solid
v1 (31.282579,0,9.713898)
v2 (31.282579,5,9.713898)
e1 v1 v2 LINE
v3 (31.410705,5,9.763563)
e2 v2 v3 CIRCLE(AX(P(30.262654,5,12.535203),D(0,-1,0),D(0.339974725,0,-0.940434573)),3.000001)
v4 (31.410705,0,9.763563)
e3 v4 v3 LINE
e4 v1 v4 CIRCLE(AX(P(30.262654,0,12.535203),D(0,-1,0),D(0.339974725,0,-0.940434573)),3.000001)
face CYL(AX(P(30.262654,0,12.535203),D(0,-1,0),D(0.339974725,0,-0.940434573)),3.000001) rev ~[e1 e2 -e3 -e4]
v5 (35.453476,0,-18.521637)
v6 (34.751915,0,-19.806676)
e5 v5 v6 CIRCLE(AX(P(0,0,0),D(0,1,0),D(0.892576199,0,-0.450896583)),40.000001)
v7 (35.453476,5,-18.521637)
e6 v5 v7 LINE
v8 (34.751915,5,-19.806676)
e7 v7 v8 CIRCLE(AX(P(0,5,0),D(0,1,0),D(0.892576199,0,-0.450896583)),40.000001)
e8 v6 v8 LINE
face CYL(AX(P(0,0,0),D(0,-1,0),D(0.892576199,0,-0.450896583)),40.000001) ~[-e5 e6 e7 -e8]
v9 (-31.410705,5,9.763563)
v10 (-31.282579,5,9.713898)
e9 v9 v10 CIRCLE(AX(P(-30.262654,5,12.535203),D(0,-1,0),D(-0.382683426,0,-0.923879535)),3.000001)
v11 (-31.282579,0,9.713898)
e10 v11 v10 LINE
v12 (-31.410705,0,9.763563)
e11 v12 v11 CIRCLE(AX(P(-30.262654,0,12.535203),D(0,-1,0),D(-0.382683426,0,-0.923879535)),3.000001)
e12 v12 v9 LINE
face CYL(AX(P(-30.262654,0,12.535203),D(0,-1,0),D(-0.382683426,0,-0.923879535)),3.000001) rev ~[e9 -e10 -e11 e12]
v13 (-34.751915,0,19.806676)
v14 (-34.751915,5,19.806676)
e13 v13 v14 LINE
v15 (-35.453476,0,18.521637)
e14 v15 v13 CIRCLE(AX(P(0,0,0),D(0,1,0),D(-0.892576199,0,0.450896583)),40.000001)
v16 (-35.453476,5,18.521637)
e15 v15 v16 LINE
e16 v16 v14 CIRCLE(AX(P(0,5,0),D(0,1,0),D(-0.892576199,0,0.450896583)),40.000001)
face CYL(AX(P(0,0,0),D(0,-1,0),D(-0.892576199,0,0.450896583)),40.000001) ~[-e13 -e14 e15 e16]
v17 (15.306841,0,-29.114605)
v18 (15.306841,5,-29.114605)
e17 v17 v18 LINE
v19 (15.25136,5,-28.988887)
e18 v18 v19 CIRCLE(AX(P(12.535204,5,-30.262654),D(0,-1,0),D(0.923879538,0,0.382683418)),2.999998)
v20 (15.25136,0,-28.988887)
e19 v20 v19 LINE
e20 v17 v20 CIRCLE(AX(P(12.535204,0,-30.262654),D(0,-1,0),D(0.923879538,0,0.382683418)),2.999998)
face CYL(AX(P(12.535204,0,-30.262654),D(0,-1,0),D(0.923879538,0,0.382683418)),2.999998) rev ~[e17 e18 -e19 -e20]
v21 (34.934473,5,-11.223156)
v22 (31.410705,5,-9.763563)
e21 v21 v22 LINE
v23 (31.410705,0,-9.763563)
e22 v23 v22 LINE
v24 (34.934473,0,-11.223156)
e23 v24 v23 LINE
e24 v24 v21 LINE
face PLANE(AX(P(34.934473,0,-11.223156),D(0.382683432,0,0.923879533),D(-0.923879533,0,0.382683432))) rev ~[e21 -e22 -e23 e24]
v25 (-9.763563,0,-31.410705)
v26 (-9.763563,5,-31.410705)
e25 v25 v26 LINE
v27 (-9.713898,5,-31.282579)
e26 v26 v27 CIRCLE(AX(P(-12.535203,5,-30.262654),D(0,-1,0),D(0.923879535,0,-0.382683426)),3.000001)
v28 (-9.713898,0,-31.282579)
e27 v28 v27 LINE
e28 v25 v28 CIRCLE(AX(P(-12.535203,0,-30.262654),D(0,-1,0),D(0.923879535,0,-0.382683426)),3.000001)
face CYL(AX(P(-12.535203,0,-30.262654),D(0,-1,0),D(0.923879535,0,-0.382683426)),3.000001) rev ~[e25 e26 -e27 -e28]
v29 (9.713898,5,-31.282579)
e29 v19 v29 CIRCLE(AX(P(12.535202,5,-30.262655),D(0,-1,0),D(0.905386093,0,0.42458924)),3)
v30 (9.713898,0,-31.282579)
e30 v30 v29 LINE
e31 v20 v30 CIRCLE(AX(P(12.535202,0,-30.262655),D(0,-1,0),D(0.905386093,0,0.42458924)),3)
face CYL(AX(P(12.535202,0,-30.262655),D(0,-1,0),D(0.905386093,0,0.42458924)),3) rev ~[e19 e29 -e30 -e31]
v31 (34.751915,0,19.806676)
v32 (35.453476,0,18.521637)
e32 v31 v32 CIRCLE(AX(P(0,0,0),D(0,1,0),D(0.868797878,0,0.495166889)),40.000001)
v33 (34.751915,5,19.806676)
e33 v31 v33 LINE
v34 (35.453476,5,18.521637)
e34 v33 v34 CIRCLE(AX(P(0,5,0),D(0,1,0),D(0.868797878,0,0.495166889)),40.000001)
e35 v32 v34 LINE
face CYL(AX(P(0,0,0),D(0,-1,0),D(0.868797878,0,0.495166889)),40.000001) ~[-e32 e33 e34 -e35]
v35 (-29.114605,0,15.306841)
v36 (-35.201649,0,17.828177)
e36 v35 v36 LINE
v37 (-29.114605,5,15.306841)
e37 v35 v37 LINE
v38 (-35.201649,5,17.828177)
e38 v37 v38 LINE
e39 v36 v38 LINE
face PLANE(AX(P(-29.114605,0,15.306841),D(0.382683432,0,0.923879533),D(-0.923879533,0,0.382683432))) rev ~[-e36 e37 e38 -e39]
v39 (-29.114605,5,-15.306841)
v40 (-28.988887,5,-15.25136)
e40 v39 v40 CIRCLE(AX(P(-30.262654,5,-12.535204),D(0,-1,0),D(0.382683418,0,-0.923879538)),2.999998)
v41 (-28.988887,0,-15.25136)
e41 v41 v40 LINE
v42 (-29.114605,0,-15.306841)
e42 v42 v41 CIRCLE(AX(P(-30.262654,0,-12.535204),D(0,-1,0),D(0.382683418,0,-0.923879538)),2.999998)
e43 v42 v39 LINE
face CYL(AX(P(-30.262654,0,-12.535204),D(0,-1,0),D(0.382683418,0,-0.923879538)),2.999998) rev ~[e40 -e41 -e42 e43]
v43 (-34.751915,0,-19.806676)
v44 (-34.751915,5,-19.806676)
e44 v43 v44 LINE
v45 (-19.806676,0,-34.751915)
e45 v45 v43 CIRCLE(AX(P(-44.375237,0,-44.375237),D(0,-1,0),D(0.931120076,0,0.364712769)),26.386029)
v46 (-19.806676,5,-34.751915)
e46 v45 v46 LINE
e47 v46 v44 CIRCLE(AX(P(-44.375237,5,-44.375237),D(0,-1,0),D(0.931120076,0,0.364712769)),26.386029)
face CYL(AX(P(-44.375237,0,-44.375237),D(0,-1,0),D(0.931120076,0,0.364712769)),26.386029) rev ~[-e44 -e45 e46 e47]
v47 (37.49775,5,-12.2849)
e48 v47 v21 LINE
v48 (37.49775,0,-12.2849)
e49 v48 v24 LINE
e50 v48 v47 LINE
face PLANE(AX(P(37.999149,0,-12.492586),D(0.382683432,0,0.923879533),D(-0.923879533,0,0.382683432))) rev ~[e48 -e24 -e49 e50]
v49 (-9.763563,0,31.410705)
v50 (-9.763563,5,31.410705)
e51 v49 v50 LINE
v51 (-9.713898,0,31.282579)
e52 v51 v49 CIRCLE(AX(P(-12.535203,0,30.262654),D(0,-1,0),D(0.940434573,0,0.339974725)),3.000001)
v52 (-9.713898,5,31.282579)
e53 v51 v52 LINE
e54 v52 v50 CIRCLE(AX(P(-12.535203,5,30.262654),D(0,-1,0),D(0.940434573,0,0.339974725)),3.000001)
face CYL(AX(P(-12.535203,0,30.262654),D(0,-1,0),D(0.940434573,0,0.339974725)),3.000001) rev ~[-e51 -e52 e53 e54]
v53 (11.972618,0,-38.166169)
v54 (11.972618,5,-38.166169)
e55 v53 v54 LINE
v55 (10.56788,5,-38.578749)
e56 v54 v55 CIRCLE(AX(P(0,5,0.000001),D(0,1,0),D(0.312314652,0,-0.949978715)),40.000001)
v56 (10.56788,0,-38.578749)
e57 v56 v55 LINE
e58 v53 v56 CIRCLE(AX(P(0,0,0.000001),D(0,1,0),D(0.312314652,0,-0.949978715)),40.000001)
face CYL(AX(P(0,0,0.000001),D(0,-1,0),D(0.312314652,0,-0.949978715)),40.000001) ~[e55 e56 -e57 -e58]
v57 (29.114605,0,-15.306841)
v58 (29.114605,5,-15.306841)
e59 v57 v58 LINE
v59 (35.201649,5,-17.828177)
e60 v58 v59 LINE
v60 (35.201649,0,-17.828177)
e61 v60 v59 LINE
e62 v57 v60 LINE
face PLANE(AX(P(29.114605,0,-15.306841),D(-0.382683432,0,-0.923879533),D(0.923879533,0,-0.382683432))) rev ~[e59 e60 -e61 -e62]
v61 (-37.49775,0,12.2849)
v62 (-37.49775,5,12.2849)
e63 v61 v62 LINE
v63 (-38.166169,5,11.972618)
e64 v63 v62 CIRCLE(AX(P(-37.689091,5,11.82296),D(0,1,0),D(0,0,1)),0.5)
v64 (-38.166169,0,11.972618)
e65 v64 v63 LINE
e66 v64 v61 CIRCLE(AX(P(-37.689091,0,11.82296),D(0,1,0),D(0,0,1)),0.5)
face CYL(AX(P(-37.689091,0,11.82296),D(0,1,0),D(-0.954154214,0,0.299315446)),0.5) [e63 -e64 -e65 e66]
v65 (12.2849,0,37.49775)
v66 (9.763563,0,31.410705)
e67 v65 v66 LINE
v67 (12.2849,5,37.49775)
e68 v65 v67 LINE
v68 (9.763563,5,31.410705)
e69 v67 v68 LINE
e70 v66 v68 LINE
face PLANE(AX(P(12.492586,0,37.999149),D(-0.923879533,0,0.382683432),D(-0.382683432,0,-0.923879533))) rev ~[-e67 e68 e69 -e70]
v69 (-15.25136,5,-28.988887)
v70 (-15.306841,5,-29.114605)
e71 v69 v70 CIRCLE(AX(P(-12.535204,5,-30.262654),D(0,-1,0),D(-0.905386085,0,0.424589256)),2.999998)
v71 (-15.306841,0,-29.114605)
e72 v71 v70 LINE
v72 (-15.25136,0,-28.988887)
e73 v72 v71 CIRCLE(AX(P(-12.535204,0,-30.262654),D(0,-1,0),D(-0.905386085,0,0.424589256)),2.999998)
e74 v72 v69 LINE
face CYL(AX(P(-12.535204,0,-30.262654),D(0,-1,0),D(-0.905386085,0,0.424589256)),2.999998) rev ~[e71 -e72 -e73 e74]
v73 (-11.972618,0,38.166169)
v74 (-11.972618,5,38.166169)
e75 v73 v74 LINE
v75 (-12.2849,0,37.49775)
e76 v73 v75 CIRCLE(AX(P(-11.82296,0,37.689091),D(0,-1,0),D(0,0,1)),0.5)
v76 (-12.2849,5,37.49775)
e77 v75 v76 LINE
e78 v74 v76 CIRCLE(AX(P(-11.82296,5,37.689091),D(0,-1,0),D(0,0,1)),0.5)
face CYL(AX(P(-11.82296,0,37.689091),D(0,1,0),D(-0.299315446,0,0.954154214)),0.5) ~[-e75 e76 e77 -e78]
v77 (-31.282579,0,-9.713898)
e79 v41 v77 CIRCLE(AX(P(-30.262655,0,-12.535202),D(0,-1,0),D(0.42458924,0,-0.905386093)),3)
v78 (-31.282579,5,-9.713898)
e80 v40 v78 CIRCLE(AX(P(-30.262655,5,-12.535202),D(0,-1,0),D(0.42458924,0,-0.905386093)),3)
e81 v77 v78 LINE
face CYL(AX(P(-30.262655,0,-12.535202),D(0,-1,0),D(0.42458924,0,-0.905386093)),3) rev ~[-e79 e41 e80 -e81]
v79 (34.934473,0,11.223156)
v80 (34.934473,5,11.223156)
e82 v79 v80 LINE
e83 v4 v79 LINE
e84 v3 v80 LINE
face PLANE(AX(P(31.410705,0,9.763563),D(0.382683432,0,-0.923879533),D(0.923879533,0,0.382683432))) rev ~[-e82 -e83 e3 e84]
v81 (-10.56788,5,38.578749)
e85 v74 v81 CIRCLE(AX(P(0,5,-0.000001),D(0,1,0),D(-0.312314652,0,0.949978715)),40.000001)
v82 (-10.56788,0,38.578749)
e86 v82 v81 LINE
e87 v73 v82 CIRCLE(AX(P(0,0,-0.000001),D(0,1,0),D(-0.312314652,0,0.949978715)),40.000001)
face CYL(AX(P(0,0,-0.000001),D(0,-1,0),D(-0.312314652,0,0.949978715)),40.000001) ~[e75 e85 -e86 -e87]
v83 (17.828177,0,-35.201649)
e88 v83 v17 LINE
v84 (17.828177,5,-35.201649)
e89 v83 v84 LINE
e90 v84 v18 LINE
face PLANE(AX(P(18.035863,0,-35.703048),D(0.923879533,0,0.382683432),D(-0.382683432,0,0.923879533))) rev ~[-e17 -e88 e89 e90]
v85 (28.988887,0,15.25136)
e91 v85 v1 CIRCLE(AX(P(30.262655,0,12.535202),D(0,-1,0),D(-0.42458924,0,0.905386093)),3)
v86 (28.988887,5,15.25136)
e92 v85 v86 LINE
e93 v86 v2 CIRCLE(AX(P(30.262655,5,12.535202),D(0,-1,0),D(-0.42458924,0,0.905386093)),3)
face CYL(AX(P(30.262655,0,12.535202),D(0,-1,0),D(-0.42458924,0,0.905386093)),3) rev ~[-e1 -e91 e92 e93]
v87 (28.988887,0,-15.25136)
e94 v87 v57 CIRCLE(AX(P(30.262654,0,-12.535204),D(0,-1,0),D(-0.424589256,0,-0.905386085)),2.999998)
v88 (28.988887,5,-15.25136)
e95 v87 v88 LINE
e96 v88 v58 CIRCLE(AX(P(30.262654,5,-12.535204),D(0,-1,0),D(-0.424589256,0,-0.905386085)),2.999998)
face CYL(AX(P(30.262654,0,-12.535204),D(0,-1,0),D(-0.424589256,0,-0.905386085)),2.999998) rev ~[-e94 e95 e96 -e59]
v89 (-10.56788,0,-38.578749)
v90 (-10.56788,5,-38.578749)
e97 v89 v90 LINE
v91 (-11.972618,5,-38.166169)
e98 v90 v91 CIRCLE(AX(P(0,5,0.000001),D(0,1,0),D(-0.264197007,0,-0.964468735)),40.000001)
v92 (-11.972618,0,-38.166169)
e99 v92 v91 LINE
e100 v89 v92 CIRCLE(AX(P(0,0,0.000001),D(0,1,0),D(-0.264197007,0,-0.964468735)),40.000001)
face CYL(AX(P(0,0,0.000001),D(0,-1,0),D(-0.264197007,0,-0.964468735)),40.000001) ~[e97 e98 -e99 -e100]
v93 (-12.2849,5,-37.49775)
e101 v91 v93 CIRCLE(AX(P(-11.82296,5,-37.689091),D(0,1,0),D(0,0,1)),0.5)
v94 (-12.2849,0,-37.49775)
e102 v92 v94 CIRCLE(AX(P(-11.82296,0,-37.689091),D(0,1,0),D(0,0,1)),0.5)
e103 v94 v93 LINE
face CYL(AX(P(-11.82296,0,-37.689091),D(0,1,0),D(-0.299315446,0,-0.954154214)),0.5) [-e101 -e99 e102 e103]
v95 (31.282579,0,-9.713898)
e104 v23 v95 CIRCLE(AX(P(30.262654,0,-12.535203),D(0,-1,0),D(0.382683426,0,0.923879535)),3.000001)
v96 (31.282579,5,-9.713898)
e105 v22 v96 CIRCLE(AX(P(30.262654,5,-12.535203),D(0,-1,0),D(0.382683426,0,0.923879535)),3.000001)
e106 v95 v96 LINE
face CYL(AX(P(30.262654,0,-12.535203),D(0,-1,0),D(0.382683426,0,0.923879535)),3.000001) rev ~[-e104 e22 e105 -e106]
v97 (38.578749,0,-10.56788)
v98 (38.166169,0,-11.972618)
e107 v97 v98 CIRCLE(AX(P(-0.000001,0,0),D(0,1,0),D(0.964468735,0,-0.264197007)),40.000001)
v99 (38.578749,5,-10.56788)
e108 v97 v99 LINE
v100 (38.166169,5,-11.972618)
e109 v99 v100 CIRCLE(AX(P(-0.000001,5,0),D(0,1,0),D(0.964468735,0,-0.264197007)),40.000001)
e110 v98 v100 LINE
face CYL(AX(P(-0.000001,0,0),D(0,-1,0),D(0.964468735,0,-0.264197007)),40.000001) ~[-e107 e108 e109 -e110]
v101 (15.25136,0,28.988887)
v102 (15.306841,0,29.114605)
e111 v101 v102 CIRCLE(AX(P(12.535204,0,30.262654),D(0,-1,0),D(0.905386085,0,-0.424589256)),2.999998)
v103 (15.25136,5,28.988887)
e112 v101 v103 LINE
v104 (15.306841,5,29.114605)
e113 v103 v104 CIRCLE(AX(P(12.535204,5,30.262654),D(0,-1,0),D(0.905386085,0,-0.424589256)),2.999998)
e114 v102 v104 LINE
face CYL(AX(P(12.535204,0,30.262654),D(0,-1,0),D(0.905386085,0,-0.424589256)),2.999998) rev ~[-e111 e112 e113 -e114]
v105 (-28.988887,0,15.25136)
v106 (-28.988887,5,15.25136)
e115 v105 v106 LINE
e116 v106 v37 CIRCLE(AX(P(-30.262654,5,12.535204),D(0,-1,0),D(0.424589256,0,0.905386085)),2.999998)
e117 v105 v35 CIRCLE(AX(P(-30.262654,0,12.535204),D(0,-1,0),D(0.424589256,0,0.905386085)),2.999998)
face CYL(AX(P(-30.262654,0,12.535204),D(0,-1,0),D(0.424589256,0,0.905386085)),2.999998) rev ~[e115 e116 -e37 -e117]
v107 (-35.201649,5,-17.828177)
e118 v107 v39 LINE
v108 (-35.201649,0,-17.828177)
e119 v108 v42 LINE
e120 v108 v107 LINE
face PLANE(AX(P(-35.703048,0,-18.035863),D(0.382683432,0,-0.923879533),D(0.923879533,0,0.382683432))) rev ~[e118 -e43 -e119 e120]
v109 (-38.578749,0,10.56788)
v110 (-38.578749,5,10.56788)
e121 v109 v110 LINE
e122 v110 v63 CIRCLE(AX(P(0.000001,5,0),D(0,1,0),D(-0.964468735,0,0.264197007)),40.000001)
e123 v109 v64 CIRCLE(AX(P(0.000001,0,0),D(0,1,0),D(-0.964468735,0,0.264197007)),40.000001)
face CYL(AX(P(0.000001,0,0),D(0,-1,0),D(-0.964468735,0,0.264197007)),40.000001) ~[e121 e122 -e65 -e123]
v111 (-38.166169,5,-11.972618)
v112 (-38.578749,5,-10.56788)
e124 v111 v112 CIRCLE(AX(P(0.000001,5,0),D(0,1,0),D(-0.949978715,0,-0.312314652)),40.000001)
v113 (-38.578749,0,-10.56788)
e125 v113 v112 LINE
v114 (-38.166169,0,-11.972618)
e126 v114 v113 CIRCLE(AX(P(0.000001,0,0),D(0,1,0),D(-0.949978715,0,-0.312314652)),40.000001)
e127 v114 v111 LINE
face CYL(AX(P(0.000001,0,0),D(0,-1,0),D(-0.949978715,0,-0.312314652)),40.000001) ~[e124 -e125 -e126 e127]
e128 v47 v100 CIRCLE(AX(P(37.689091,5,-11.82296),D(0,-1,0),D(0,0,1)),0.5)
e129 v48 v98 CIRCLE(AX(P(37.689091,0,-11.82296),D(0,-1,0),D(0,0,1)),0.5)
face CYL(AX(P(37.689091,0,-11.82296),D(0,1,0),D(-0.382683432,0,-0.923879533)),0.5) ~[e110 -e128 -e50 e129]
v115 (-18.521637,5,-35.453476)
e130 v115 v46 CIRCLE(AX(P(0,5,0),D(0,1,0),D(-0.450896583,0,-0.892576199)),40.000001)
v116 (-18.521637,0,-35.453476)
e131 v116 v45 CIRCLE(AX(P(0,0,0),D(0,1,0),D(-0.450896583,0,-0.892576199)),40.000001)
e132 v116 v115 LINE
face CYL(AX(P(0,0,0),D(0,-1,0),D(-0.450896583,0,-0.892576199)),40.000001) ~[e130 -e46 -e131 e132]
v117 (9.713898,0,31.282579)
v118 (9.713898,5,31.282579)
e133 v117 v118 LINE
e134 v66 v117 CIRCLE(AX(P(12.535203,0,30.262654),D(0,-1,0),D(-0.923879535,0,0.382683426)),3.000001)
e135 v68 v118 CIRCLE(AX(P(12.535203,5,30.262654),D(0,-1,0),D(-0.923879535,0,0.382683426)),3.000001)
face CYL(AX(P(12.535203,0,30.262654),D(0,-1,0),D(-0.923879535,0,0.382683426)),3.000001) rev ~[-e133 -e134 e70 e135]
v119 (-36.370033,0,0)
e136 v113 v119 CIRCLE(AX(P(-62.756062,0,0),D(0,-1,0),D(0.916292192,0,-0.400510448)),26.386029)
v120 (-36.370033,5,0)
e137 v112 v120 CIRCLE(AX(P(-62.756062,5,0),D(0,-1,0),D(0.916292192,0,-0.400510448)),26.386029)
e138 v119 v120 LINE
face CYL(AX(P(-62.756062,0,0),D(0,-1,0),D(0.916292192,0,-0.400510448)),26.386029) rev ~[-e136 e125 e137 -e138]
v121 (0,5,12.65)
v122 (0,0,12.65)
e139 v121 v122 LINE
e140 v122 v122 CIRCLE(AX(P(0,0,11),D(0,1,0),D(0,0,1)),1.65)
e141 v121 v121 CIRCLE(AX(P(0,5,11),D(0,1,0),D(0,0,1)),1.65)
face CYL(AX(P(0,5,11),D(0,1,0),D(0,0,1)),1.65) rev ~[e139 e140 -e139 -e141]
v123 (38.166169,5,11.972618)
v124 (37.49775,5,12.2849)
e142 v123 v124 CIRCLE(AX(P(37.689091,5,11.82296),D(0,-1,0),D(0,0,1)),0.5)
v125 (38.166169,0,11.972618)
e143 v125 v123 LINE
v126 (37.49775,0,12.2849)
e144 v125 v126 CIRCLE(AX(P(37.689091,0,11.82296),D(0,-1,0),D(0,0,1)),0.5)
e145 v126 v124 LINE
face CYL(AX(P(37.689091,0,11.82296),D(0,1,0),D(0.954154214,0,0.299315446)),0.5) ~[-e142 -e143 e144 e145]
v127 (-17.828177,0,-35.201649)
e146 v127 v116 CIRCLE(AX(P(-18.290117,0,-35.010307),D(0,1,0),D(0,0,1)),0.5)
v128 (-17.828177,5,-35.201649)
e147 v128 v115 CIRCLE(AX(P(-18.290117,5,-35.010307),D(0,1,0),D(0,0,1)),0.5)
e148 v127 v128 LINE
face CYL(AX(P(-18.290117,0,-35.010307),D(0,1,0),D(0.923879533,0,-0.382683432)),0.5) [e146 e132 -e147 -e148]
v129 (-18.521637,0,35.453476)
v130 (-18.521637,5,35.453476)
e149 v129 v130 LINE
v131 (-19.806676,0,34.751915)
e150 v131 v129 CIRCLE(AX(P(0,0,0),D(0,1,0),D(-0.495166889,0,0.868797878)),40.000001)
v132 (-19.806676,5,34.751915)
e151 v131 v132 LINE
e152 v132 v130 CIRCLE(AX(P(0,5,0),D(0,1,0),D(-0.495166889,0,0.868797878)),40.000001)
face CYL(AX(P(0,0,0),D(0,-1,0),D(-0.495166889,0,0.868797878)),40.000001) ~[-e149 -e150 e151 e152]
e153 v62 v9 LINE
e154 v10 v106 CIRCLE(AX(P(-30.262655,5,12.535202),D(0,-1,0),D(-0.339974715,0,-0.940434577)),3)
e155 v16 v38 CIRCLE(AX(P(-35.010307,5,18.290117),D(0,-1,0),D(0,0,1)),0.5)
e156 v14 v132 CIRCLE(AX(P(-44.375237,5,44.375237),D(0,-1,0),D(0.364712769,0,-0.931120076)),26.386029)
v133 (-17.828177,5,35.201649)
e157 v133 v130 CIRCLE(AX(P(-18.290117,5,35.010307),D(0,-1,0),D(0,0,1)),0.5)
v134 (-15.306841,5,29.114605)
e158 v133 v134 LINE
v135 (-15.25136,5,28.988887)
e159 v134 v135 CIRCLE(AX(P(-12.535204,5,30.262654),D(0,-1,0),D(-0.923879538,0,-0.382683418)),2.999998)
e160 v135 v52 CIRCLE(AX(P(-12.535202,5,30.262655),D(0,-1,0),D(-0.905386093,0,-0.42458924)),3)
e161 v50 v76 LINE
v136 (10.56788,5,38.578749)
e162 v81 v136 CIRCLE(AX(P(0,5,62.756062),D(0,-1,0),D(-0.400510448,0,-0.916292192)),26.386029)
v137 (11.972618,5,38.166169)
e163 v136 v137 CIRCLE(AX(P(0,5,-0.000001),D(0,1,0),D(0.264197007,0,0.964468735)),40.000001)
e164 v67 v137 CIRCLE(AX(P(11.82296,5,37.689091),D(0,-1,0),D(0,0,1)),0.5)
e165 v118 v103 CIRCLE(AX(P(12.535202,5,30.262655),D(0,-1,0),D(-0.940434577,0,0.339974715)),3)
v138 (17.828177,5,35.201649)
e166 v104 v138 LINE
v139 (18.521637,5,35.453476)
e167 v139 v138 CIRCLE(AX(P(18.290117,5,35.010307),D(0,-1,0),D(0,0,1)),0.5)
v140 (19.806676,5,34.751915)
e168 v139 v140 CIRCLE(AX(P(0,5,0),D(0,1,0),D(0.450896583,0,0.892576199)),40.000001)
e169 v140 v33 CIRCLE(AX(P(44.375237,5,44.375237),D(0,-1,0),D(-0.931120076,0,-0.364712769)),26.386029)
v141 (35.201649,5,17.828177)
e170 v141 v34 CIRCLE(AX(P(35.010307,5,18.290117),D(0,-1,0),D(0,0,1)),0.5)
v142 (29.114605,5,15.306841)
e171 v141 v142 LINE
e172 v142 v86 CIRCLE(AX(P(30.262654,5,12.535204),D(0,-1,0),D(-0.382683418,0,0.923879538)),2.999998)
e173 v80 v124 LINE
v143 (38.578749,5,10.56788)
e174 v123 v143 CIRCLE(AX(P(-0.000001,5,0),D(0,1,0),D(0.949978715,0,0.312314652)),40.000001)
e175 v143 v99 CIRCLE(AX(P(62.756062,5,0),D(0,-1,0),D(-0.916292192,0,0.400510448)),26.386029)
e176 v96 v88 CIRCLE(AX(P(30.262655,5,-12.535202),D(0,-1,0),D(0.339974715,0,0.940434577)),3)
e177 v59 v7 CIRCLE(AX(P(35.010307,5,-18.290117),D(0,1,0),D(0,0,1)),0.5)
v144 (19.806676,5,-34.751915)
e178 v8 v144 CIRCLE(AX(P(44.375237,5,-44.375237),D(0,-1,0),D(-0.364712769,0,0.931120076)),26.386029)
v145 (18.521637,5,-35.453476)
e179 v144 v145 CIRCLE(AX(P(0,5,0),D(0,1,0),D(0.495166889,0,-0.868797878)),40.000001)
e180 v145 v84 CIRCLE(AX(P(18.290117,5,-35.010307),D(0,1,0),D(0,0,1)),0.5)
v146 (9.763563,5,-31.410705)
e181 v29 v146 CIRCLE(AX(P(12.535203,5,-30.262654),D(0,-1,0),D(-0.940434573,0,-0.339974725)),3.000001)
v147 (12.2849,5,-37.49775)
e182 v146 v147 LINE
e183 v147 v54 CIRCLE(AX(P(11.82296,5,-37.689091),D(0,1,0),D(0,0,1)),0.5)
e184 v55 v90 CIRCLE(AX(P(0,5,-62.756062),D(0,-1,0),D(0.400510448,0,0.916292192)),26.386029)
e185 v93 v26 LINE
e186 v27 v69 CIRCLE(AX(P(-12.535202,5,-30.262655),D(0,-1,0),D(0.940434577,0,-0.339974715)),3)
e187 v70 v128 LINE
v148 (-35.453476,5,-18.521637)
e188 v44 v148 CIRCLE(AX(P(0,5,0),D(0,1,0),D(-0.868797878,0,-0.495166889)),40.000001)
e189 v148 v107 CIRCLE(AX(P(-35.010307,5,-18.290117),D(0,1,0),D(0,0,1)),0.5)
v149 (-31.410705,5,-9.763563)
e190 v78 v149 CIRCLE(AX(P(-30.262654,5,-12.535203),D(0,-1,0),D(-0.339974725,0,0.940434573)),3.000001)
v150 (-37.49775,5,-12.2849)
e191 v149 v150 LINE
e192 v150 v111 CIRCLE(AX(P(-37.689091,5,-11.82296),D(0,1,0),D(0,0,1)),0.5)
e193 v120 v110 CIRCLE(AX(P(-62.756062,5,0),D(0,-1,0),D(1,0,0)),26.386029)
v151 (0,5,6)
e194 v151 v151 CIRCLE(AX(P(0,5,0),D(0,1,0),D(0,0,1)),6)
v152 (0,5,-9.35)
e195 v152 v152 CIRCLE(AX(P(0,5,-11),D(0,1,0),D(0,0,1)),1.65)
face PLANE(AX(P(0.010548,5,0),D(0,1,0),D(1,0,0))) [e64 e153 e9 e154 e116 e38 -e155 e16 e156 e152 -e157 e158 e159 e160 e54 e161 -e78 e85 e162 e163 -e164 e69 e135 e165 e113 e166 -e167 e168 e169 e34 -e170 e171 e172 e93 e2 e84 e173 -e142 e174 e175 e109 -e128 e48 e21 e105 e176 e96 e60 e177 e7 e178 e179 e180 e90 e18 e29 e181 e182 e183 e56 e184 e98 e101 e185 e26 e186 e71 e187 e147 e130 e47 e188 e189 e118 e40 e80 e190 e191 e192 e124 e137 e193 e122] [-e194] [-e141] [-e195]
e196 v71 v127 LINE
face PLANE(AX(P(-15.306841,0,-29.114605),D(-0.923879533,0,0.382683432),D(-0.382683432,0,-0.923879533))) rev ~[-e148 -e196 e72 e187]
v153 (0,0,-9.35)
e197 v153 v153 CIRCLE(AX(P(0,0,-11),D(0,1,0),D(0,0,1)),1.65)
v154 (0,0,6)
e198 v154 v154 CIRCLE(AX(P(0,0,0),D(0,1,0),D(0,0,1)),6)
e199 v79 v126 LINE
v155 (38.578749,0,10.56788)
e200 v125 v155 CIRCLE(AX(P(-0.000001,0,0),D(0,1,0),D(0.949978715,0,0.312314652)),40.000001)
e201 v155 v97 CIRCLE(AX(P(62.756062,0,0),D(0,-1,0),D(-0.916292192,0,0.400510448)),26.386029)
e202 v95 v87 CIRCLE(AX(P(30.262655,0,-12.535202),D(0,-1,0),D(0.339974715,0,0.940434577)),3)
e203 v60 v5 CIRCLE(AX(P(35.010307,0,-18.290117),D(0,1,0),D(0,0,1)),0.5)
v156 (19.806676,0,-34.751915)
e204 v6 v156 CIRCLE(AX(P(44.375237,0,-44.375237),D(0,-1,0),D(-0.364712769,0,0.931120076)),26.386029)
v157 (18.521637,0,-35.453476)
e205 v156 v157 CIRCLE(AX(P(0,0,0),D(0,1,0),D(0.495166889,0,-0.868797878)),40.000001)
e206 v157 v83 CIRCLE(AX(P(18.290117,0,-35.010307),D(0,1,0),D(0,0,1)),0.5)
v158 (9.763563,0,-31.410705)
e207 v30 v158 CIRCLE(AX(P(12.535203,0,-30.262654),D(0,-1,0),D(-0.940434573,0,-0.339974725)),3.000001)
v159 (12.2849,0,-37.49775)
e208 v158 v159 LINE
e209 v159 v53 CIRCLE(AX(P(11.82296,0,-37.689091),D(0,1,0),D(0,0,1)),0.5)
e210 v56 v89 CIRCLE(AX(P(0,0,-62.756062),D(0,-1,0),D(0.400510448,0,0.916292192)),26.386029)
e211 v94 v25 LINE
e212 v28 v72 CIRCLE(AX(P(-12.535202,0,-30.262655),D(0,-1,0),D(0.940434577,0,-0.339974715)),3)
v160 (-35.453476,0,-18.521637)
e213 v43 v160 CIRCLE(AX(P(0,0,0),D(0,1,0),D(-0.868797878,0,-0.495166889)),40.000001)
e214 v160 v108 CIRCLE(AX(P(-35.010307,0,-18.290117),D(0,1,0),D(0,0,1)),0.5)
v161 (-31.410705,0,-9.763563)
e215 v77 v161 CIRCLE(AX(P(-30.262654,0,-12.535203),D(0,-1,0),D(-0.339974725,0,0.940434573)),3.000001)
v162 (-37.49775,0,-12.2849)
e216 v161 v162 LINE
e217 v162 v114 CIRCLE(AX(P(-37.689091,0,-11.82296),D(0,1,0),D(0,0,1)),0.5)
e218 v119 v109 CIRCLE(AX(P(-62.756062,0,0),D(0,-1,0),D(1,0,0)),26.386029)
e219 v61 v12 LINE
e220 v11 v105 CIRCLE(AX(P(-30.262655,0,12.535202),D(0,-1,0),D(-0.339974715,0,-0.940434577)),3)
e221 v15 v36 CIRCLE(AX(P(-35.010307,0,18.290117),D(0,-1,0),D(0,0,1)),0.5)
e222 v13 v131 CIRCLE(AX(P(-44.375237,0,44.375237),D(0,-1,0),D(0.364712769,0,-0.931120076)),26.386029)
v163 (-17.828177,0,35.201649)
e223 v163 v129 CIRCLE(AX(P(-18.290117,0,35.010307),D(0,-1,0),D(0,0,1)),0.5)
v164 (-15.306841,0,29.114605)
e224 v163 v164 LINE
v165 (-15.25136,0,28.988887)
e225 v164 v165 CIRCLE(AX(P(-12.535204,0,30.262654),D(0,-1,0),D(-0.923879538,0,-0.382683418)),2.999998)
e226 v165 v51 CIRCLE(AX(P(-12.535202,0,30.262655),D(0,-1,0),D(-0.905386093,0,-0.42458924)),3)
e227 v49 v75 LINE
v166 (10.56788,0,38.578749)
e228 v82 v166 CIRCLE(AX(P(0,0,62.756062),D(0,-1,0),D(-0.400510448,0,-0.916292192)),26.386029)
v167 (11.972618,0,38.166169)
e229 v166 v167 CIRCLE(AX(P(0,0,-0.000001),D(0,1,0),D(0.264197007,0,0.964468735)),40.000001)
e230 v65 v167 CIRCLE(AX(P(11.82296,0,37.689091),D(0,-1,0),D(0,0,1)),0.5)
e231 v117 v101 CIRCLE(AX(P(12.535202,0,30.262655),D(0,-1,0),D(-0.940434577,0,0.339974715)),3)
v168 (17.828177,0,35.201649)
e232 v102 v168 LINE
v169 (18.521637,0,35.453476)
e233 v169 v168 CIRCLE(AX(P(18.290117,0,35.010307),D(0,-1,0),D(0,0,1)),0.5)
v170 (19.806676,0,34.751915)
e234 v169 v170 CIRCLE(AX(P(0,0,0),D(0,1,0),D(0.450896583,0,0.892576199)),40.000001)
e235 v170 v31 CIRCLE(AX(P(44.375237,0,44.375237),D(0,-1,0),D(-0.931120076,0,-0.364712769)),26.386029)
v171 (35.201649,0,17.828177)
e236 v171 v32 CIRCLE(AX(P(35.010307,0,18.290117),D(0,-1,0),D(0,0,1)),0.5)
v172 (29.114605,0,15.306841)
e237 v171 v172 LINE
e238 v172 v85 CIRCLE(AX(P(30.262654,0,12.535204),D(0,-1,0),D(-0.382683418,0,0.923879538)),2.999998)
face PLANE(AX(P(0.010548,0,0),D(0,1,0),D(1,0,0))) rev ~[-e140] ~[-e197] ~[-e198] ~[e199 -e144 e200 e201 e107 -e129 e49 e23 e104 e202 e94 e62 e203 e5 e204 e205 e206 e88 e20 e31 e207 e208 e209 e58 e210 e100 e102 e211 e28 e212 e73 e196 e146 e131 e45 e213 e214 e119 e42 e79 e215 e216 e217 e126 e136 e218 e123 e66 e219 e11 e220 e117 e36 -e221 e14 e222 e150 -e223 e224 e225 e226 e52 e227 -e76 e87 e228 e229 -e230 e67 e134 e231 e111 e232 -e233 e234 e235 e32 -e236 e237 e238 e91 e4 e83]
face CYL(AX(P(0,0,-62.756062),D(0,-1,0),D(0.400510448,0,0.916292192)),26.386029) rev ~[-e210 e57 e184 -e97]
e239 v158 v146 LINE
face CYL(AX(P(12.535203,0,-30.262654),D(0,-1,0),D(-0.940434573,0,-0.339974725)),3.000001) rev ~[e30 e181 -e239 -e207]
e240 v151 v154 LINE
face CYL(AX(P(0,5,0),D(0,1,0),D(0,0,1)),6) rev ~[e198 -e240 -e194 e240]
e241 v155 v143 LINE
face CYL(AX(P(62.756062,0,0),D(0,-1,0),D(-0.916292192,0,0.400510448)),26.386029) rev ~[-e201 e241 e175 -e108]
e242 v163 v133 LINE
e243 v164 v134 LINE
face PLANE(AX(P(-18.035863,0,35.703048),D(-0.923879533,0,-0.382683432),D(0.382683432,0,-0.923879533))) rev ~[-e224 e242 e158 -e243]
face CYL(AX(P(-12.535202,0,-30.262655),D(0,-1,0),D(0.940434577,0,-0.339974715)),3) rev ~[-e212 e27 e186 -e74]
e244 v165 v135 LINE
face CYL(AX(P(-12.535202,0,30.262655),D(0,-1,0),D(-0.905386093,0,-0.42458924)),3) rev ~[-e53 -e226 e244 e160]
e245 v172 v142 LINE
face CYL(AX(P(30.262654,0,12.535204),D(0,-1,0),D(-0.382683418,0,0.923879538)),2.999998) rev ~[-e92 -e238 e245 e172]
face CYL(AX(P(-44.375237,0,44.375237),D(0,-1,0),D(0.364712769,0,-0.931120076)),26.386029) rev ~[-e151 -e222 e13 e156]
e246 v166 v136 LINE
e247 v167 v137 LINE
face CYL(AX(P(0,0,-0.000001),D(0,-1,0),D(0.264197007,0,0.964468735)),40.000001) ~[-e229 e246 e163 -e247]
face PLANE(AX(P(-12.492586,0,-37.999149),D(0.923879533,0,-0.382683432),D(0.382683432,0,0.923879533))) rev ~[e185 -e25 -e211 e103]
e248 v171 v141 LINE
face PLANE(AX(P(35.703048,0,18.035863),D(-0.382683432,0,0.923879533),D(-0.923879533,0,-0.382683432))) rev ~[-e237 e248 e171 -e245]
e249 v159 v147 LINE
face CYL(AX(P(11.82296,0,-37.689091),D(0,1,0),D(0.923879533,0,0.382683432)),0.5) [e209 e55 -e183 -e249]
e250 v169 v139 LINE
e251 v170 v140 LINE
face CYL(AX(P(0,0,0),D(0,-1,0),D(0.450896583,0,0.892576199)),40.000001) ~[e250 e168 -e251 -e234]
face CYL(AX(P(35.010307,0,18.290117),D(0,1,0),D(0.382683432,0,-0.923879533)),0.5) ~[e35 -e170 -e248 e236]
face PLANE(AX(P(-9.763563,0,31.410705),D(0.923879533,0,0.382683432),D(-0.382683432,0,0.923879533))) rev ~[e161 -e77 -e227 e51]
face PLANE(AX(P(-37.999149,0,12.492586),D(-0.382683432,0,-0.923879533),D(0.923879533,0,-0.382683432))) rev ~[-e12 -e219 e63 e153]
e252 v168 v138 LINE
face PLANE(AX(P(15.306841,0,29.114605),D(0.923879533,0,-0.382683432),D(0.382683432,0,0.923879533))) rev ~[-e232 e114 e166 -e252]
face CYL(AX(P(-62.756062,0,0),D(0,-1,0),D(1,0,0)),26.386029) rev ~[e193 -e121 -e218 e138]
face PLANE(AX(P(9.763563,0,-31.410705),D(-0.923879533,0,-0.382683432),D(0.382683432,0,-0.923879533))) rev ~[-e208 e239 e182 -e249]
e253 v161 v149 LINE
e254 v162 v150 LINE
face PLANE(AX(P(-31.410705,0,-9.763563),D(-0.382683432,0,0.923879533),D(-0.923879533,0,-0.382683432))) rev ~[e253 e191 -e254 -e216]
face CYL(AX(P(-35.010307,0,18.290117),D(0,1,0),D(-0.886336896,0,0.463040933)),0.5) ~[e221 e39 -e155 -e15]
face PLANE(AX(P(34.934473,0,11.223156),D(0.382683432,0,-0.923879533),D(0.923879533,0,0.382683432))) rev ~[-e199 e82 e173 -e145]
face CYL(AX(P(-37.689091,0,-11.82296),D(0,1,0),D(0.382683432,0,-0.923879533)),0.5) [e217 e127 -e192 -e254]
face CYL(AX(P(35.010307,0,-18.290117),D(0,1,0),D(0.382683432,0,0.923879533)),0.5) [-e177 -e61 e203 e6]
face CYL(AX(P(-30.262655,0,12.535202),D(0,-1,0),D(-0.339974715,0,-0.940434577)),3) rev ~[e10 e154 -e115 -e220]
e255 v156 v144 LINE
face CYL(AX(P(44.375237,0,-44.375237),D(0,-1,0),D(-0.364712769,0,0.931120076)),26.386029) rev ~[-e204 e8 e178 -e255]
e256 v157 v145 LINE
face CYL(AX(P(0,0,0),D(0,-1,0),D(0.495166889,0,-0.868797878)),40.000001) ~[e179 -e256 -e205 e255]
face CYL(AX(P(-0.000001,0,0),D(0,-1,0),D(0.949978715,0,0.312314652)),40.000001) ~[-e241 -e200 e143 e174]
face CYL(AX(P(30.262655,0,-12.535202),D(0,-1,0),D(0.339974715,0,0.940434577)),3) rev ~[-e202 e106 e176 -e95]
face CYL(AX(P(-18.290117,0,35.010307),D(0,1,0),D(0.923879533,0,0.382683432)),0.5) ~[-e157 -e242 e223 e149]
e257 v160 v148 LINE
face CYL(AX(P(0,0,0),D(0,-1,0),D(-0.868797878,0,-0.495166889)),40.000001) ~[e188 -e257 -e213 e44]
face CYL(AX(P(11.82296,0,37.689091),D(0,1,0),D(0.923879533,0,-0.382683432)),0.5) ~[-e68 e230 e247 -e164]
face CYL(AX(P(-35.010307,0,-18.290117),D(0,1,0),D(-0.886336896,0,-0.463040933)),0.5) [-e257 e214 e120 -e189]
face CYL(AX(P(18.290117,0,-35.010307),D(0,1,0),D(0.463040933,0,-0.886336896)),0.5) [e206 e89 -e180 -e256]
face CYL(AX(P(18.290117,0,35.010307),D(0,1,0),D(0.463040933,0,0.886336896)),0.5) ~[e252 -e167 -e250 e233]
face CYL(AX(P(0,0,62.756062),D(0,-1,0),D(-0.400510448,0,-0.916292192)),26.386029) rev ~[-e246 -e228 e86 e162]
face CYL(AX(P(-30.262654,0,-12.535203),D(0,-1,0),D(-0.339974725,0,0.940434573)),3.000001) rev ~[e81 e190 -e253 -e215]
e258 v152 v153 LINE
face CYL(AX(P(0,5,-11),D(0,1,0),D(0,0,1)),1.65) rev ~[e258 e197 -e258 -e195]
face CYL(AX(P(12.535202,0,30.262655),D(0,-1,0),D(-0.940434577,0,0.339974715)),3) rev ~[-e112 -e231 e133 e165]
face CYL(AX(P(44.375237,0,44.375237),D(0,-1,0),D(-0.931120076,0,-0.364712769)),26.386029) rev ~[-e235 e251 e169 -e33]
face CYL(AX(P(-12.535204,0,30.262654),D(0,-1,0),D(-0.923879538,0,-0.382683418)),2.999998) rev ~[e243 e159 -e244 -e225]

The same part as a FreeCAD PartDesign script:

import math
import FreeCAD as App
import Part
import Sketcher

V = App.Vector
Q = App.Units.Quantity


def edges_at(feature, points):
    """Names of the edges that pass closest to the given points."""
    edges = feature.Shape.Edges
    near = lambda p: min(range(len(edges)), key=lambda i: edges[i].distToShape(Part.Vertex(*p))[0])
    return sorted({f"Edge{near(p) + 1}" for p in points})

doc = App.newDocument("Part")
params = doc.addObject("Spreadsheet::Sheet", "Params")
for row, (alias, value) in enumerate([
    ("sketch1_radius", "3 mm"),
    ("sketch1_radius2", "40.000001 mm"),
    ("pad1_length", "5 mm"),
    ("sketch2_diameter", "12 mm"),
    ("sketch2_diameter2", "3.3 mm"),
    ("pocket1_length", "10 mm"),
    ("fillet_radius", "0.5 mm"),
], start=1):
    params.set(f"A{row}", alias)
    params.set(f"B{row}", "=" + value)
    params.setAlias(f"B{row}", alias)

body = doc.addObject("PartDesign::Body", "Body")

sketch1 = body.newObject("Sketcher::SketchObject", "Sketch")
sketch1.AttachmentSupport = (doc.getObject("XZ_Plane"), [""])
sketch1.MapMode = "FlatFace"
sketch1.addGeometry([
    Part.ArcOfCircle(Part.Circle(V(30.262655, -12.535202, 0), V(0, 0, 1), 3), math.radians(70.124666), math.radians(244.875334)),
    Part.ArcOfCircle(Part.Circle(V(30.262654, -12.535204, 0), V(0, 0, 1), 2.999998), math.radians(-115.124667), math.radians(-112.499999)),
    Part.LineSegment(V(29.114605, -15.306841, 0), V(35.703048, -18.035863, 0)),
    Part.ArcOfCircle(Part.Circle(V(0, 0, 0), V(0, 0, 1), 40.000001), math.radians(-29.680756), math.radians(-26.801222)),
    Part.ArcOfCircle(Part.Circle(V(44.375237, -44.375237, 0), V(0, 0, 1), 26.386029), math.radians(111.389907), math.radians(158.610093)),
    Part.ArcOfCircle(Part.Circle(V(0, 0, 0), V(0, 0, 1), 40.000001), math.radians(-63.198778), math.radians(-60.319244)),
    Part.LineSegment(V(18.035863, -35.703048, 0), V(15.306841, -29.114605, 0)),
    Part.ArcOfCircle(Part.Circle(V(12.535204, -30.262654, 0), V(0, 0, 1), 2.999998), math.radians(22.499999), math.radians(25.124667)),
    Part.ArcOfCircle(Part.Circle(V(12.535202, -30.262655, 0), V(0, 0, 1), 3), math.radians(25.124666), math.radians(199.875334)),
    Part.ArcOfCircle(Part.Circle(V(12.535203, -30.262654, 0), V(0, 0, 1), 3.000001), math.radians(-160.124666), math.radians(-157.5)),
    Part.LineSegment(V(9.763563, -31.410705, 0), V(12.492586, -37.999149, 0)),
    Part.ArcOfCircle(Part.Circle(V(0, 0.000001, 0), V(0, 0, 1), 40.000001), math.radians(-74.680756), math.radians(-71.801222)),
    Part.ArcOfCircle(Part.Circle(V(0, -62.756062, 0), V(0, 0, 1), 26.386029), math.radians(66.389907), math.radians(113.610093)),
    Part.ArcOfCircle(Part.Circle(V(0, 0.000001, 0), V(0, 0, 1), 40.000001), math.radians(-108.198778), math.radians(-105.319244)),
    Part.LineSegment(V(-12.492586, -37.999149, 0), V(-9.763563, -31.410705, 0)),
    Part.ArcOfCircle(Part.Circle(V(-12.535203, -30.262654, 0), V(0, 0, 1), 3.000001), math.radians(-22.5), math.radians(-19.875334)),
    Part.ArcOfCircle(Part.Circle(V(-12.535202, -30.262655, 0), V(0, 0, 1), 3), math.radians(-19.875334), math.radians(154.875334)),
    Part.ArcOfCircle(Part.Circle(V(-12.535204, -30.262654, 0), V(0, 0, 1), 2.999998), math.radians(154.875333), math.radians(157.500001)),
    Part.LineSegment(V(-15.306841, -29.114605, 0), V(-18.035863, -35.703048, 0)),
    Part.ArcOfCircle(Part.Circle(V(0, 0, 0), V(0, 0, 1), 40.000001), math.radians(-119.680756), math.radians(-116.801222)),
    Part.ArcOfCircle(Part.Circle(V(-44.375237, -44.375237, 0), V(0, 0, 1), 26.386029), math.radians(21.389907), math.radians(68.610093)),
    Part.ArcOfCircle(Part.Circle(V(0, 0, 0), V(0, 0, 1), 40.000001), math.radians(-153.198778), math.radians(-150.319244)),
    Part.LineSegment(V(-35.703048, -18.035863, 0), V(-29.114605, -15.306841, 0)),
    Part.ArcOfCircle(Part.Circle(V(-30.262654, -12.535204, 0), V(0, 0, 1), 2.999998), math.radians(-67.500001), math.radians(-64.875333)),
    Part.ArcOfCircle(Part.Circle(V(-30.262655, -12.535202, 0), V(0, 0, 1), 3), math.radians(-64.875334), math.radians(109.875334)),
    Part.ArcOfCircle(Part.Circle(V(-30.262654, -12.535203, 0), V(0, 0, 1), 3.000001), math.radians(109.875334), math.radians(112.5)),
    Part.LineSegment(V(-31.410705, -9.763563, 0), V(-37.999149, -12.492586, 0)),
    Part.ArcOfCircle(Part.Circle(V(0.000001, 0, 0), V(0, 0, 1), 40.000001), math.radians(-164.680756), math.radians(-161.801222)),
    Part.ArcOfCircle(Part.Circle(V(-62.756062, 0, 0), V(0, 0, 1), 26.386029), math.radians(-23.610093), math.radians(0)),
    Part.ArcOfCircle(Part.Circle(V(-62.756062, 0, 0), V(0, 0, 1), 26.386029), math.radians(0), math.radians(23.610093)),
    Part.ArcOfCircle(Part.Circle(V(0.000001, 0, 0), V(0, 0, 1), 40.000001), math.radians(161.801222), math.radians(164.680756)),
    Part.LineSegment(V(-37.999149, 12.492586, 0), V(-31.410705, 9.763563, 0)),
    Part.ArcOfCircle(Part.Circle(V(-30.262654, 12.535203, 0), V(0, 0, 1), 3.000001), math.radians(-112.5), math.radians(-109.875334)),
    Part.ArcOfCircle(Part.Circle(V(-30.262655, 12.535202, 0), V(0, 0, 1), 3), math.radians(-109.875334), math.radians(64.875334)),
    Part.ArcOfCircle(Part.Circle(V(-30.262654, 12.535204, 0), V(0, 0, 1), 2.999998), math.radians(64.875333), math.radians(67.500001)),
    Part.LineSegment(V(-29.114605, 15.306841, 0), V(-35.703048, 18.035863, 0)),
    Part.ArcOfCircle(Part.Circle(V(0, 0, 0), V(0, 0, 1), 40.000001), math.radians(150.319244), math.radians(153.198778)),
    Part.ArcOfCircle(Part.Circle(V(-44.375237, 44.375237, 0), V(0, 0, 1), 26.386029), math.radians(-68.610093), math.radians(-21.389907)),
    Part.ArcOfCircle(Part.Circle(V(0, 0, 0), V(0, 0, 1), 40.000001), math.radians(116.801222), math.radians(119.680756)),
    Part.LineSegment(V(-18.035863, 35.703048, 0), V(-15.306841, 29.114605, 0)),
    Part.ArcOfCircle(Part.Circle(V(-12.535204, 30.262654, 0), V(0, 0, 1), 2.999998), math.radians(-157.500001), math.radians(-154.875333)),
    Part.ArcOfCircle(Part.Circle(V(-12.535202, 30.262655, 0), V(0, 0, 1), 3), math.radians(-154.875334), math.radians(19.875334)),
    Part.ArcOfCircle(Part.Circle(V(-12.535203, 30.262654, 0), V(0, 0, 1), 3.000001), math.radians(19.875334), math.radians(22.5)),
    Part.LineSegment(V(-9.763563, 31.410705, 0), V(-12.492586, 37.999149, 0)),
    Part.ArcOfCircle(Part.Circle(V(0, -0.000001, 0), V(0, 0, 1), 40.000001), math.radians(105.319244), math.radians(108.198778)),
    Part.ArcOfCircle(Part.Circle(V(0, 62.756062, 0), V(0, 0, 1), 26.386029), math.radians(-113.610093), math.radians(-66.389907)),
    Part.ArcOfCircle(Part.Circle(V(0, -0.000001, 0), V(0, 0, 1), 40.000001), math.radians(71.801222), math.radians(74.680756)),
    Part.LineSegment(V(12.492586, 37.999149, 0), V(9.763563, 31.410705, 0)),
    Part.ArcOfCircle(Part.Circle(V(12.535203, 30.262654, 0), V(0, 0, 1), 3.000001), math.radians(157.5), math.radians(160.124666)),
    Part.ArcOfCircle(Part.Circle(V(12.535202, 30.262655, 0), V(0, 0, 1), 3), math.radians(160.124666), math.radians(334.875334)),
    Part.ArcOfCircle(Part.Circle(V(12.535204, 30.262654, 0), V(0, 0, 1), 2.999998), math.radians(-25.124667), math.radians(-22.499999)),
    Part.LineSegment(V(15.306841, 29.114605, 0), V(18.035863, 35.703048, 0)),
    Part.ArcOfCircle(Part.Circle(V(0, 0, 0), V(0, 0, 1), 40.000001), math.radians(60.319244), math.radians(63.198778)),
    Part.ArcOfCircle(Part.Circle(V(44.375237, 44.375237, 0), V(0, 0, 1), 26.386029), math.radians(-158.610093), math.radians(-111.389907)),
    Part.ArcOfCircle(Part.Circle(V(0, 0, 0), V(0, 0, 1), 40.000001), math.radians(26.801222), math.radians(29.680756)),
    Part.LineSegment(V(35.703048, 18.035863, 0), V(29.114605, 15.306841, 0)),
    Part.ArcOfCircle(Part.Circle(V(30.262654, 12.535204, 0), V(0, 0, 1), 2.999998), math.radians(112.499999), math.radians(115.124667)),
    Part.ArcOfCircle(Part.Circle(V(30.262655, 12.535202, 0), V(0, 0, 1), 3), math.radians(115.124666), math.radians(289.875334)),
    Part.ArcOfCircle(Part.Circle(V(30.262654, 12.535203, 0), V(0, 0, 1), 3.000001), math.radians(-70.124666), math.radians(-67.5)),
    Part.LineSegment(V(31.410705, 9.763563, 0), V(34.934473, 11.223156, 0)),
    Part.LineSegment(V(34.934473, 11.223156, 0), V(37.999149, 12.492586, 0)),
    Part.ArcOfCircle(Part.Circle(V(-0.000001, 0, 0), V(0, 0, 1), 40.000001), math.radians(15.319244), math.radians(18.198778)),
    Part.ArcOfCircle(Part.Circle(V(62.756062, 0, 0), V(0, 0, 1), 26.386029), math.radians(156.389907), math.radians(203.610093)),
    Part.ArcOfCircle(Part.Circle(V(-0.000001, 0, 0), V(0, 0, 1), 40.000001), math.radians(-18.198778), math.radians(-15.319244)),
    Part.LineSegment(V(37.999149, -12.492586, 0), V(34.934473, -11.223156, 0)),
    Part.LineSegment(V(34.934473, -11.223156, 0), V(31.410705, -9.763563, 0)),
    Part.ArcOfCircle(Part.Circle(V(30.262654, -12.535203, 0), V(0, 0, 1), 3.000001), math.radians(67.5), math.radians(70.124666)),
], False)
sketch1.addConstraint([
    Sketcher.Constraint("Tangent", 0, 2, 1, 1),
    Sketcher.Constraint("Tangent", 1, 2, 2, 1),
    Sketcher.Constraint("Coincident", 2, 2, 3, 2),
    Sketcher.Constraint("Coincident", 3, 1, 4, 1),
    Sketcher.Constraint("Coincident", 4, 2, 5, 2),
    Sketcher.Constraint("Coincident", 5, 1, 6, 1),
    Sketcher.Constraint("Tangent", 6, 2, 7, 1),
    Sketcher.Constraint("Tangent", 7, 2, 8, 1),
    Sketcher.Constraint("Tangent", 8, 2, 9, 1),
    Sketcher.Constraint("Tangent", 9, 2, 10, 1),
    Sketcher.Constraint("Coincident", 10, 2, 11, 2),
    Sketcher.Constraint("Coincident", 11, 1, 12, 1),
    Sketcher.Constraint("Coincident", 12, 2, 13, 2),
    Sketcher.Constraint("Coincident", 13, 1, 14, 1),
    Sketcher.Constraint("Tangent", 14, 2, 15, 1),
    Sketcher.Constraint("Tangent", 15, 2, 16, 1),
    Sketcher.Constraint("Tangent", 16, 2, 17, 1),
    Sketcher.Constraint("Tangent", 17, 2, 18, 1),
    Sketcher.Constraint("Coincident", 18, 2, 19, 2),
    Sketcher.Constraint("Coincident", 19, 1, 20, 1),
    Sketcher.Constraint("Coincident", 20, 2, 21, 2),
    Sketcher.Constraint("Coincident", 21, 1, 22, 1),
    Sketcher.Constraint("Tangent", 22, 2, 23, 1),
    Sketcher.Constraint("Tangent", 23, 2, 24, 1),
    Sketcher.Constraint("Tangent", 24, 2, 25, 1),
    Sketcher.Constraint("Tangent", 25, 2, 26, 1),
    Sketcher.Constraint("Coincident", 26, 2, 27, 2),
    Sketcher.Constraint("Coincident", 27, 1, 28, 1),
    Sketcher.Constraint("Tangent", 28, 2, 29, 1),
    Sketcher.Constraint("Coincident", 29, 2, 30, 2),
    Sketcher.Constraint("Coincident", 30, 1, 31, 1),
    Sketcher.Constraint("Tangent", 31, 2, 32, 1),
    Sketcher.Constraint("Tangent", 32, 2, 33, 1),
    Sketcher.Constraint("Tangent", 33, 2, 34, 1),
    Sketcher.Constraint("Tangent", 34, 2, 35, 1),
    Sketcher.Constraint("Coincident", 35, 2, 36, 2),
    Sketcher.Constraint("Coincident", 36, 1, 37, 1),
    Sketcher.Constraint("Coincident", 37, 2, 38, 2),
    Sketcher.Constraint("Coincident", 38, 1, 39, 1),
    Sketcher.Constraint("Tangent", 39, 2, 40, 1),
    Sketcher.Constraint("Tangent", 40, 2, 41, 1),
    Sketcher.Constraint("Tangent", 41, 2, 42, 1),
    Sketcher.Constraint("Tangent", 42, 2, 43, 1),
    Sketcher.Constraint("Coincident", 43, 2, 44, 2),
    Sketcher.Constraint("Coincident", 44, 1, 45, 1),
    Sketcher.Constraint("Coincident", 45, 2, 46, 2),
    Sketcher.Constraint("Coincident", 46, 1, 47, 1),
    Sketcher.Constraint("Tangent", 47, 2, 48, 1),
    Sketcher.Constraint("Tangent", 48, 2, 49, 1),
    Sketcher.Constraint("Tangent", 49, 2, 50, 1),
    Sketcher.Constraint("Tangent", 50, 2, 51, 1),
    Sketcher.Constraint("Coincident", 51, 2, 52, 2),
    Sketcher.Constraint("Coincident", 52, 1, 53, 1),
    Sketcher.Constraint("Coincident", 53, 2, 54, 2),
    Sketcher.Constraint("Coincident", 54, 1, 55, 1),
    Sketcher.Constraint("Tangent", 55, 2, 56, 1),
    Sketcher.Constraint("Tangent", 56, 2, 57, 1),
    Sketcher.Constraint("Tangent", 57, 2, 58, 1),
    Sketcher.Constraint("Tangent", 58, 2, 59, 1),
    Sketcher.Constraint("Coincident", 59, 2, 60, 1),
    Sketcher.Constraint("Coincident", 60, 2, 61, 2),
    Sketcher.Constraint("Coincident", 61, 1, 62, 1),
    Sketcher.Constraint("Coincident", 62, 2, 63, 2),
    Sketcher.Constraint("Coincident", 63, 1, 64, 1),
    Sketcher.Constraint("Coincident", 64, 2, 65, 1),
    Sketcher.Constraint("Tangent", 65, 2, 66, 1),
    Sketcher.Constraint("Tangent", 66, 2, 0, 1),
    Sketcher.Constraint("Coincident", 3, 3, -1, 1),
    Sketcher.Constraint("Coincident", 5, 3, -1, 1),
    Sketcher.Constraint("Coincident", 11, 3, -1, 1),
    Sketcher.Constraint("Coincident", 13, 3, -1, 1),
    Sketcher.Constraint("Coincident", 19, 3, -1, 1),
    Sketcher.Constraint("Coincident", 21, 3, -1, 1),
    Sketcher.Constraint("Coincident", 27, 3, -1, 1),
    Sketcher.Constraint("Coincident", 30, 3, -1, 1),
    Sketcher.Constraint("Coincident", 36, 3, -1, 1),
    Sketcher.Constraint("Coincident", 38, 3, -1, 1),
    Sketcher.Constraint("Coincident", 44, 3, -1, 1),
    Sketcher.Constraint("Coincident", 46, 3, -1, 1),
    Sketcher.Constraint("Coincident", 52, 3, -1, 1),
    Sketcher.Constraint("Coincident", 54, 3, -1, 1),
    Sketcher.Constraint("Coincident", 61, 3, -1, 1),
    Sketcher.Constraint("Coincident", 63, 3, -1, 1),
    Sketcher.Constraint("Coincident", 9, 3, 7, 3),
    Sketcher.Constraint("Coincident", 17, 3, 15, 3),
    Sketcher.Constraint("Coincident", 25, 3, 23, 3),
    Sketcher.Constraint("Coincident", 34, 3, 32, 3),
    Sketcher.Constraint("Coincident", 42, 3, 40, 3),
    Sketcher.Constraint("Coincident", 50, 3, 48, 3),
    Sketcher.Constraint("Coincident", 58, 3, 56, 3),
    Sketcher.Constraint("Equal", 3, 5),
    Sketcher.Constraint("Equal", 1, 7),
    Sketcher.Constraint("Equal", 0, 8),
    Sketcher.Constraint("Equal", 5, 11),
    Sketcher.Constraint("Equal", 4, 12),
    Sketcher.Constraint("Equal", 11, 13),
    Sketcher.Constraint("Equal", 9, 15),
    Sketcher.Constraint("Equal", 13, 19),
    Sketcher.Constraint("Equal", 12, 20),
    Sketcher.Constraint("Equal", 19, 21),
    Sketcher.Constraint("Equal", 17, 23),
    Sketcher.Constraint("Equal", 21, 27),
    Sketcher.Constraint("Equal", 20, 28),
    Sketcher.Constraint("Equal", 28, 29),
    Sketcher.Constraint("Equal", 27, 30),
    Sketcher.Constraint("Equal", 25, 32),
    Sketcher.Constraint("Equal", 30, 36),
    Sketcher.Constraint("Equal", 29, 37),
    Sketcher.Constraint("Equal", 36, 38),
    Sketcher.Constraint("Equal", 34, 40),
    Sketcher.Constraint("Equal", 38, 44),
    Sketcher.Constraint("Equal", 37, 45),
    Sketcher.Constraint("Equal", 44, 46),
    Sketcher.Constraint("Equal", 42, 48),
    Sketcher.Constraint("Equal", 46, 52),
    Sketcher.Constraint("Equal", 45, 53),
    Sketcher.Constraint("Equal", 52, 54),
    Sketcher.Constraint("Equal", 50, 56),
    Sketcher.Constraint("Equal", 54, 61),
    Sketcher.Constraint("Equal", 53, 62),
    Sketcher.Constraint("Equal", 61, 63),
    Sketcher.Constraint("Equal", 58, 66),
    Sketcher.Constraint("Symmetric", 0, 3, 32, 3, -1, 1),
    Sketcher.Constraint("Symmetric", 4, 3, 37, 3, -1, 1),
    Sketcher.Constraint("Symmetric", 7, 3, 40, 3, -1, 1),
    Sketcher.Constraint("Symmetric", 12, 3, 45, 3, -1, 1),
    Sketcher.Constraint("Symmetric", 15, 3, 48, 3, -1, 1),
    Sketcher.Constraint("Symmetric", 20, 3, 53, 3, -1, 1),
    Sketcher.Constraint("Symmetric", 23, 3, 56, 3, -1, 1),
    Sketcher.Constraint("Symmetric", 28, 3, 62, 3, -1, 1),
    Sketcher.Constraint("Symmetric", 7, 3, 15, 3, -2),
    Sketcher.Constraint("Symmetric", 4, 3, 20, 3, -2),
    Sketcher.Constraint("Symmetric", 0, 3, 23, 3, -2),
    Sketcher.Constraint("Symmetric", 59, 2, 64, 2, -1),
    Sketcher.Constraint("PointOnObject", 12, 3, -2),
    Sketcher.Constraint("PointOnObject", 28, 3, -1),
    Sketcher.Constraint("PointOnObject", 28, 2, -1),
    Sketcher.Constraint("Parallel", 6, 10),
    Sketcher.Constraint("Perpendicular", 2, 14),
    Sketcher.Constraint("Parallel", 14, 18),
    Sketcher.Constraint("Perpendicular", 10, 22),
    Sketcher.Constraint("Parallel", 22, 26),
    Sketcher.Constraint("Perpendicular", 18, 31),
    Sketcher.Constraint("Parallel", 31, 35),
    Sketcher.Constraint("Perpendicular", 26, 39),
    Sketcher.Constraint("Parallel", 39, 43),
    Sketcher.Constraint("Perpendicular", 35, 47),
    Sketcher.Constraint("Parallel", 47, 51),
    Sketcher.Constraint("Perpendicular", 43, 55),
    Sketcher.Constraint("Parallel", 55, 59),
    Sketcher.Constraint("Parallel", 59, 60),
    Sketcher.Constraint("Perpendicular", 51, 64),
    Sketcher.Constraint("Parallel", 64, 65),
    Sketcher.Constraint("Horizontal", 8, 2, 15, 2),
    Sketcher.Constraint("Horizontal", 7, 2, 16, 2),
    Sketcher.Constraint("Horizontal", 0, 2, 23, 2),
    Sketcher.Constraint("Horizontal", 41, 2, 48, 2),
    Sketcher.Constraint("Horizontal", 40, 2, 49, 2),
    Sketcher.Constraint("Horizontal", 33, 2, 56, 2),
    Sketcher.Constraint("Horizontal", 32, 2, 57, 2),
    Sketcher.Constraint("Horizontal", 24, 2, 66, 2),
    Sketcher.Constraint("Vertical", 24, 2, 32, 2),
    Sketcher.Constraint("Vertical", 23, 2, 33, 2),
    Sketcher.Constraint("Vertical", 16, 2, 40, 2),
    Sketcher.Constraint("Vertical", 15, 2, 41, 2),
    Sketcher.Constraint("Equal", 2, 6),
    Sketcher.Constraint("Equal", 6, 10),
    Sketcher.Constraint("Equal", 22, 26),
    Sketcher.Constraint("Radius", 0, 3.0),
    Sketcher.Constraint("Radius", 3, 40.000001),
    Sketcher.Constraint("Angle", 2, Q("-22.5 deg")),
    Sketcher.Constraint("Radius", 4, 26.386029),
    Sketcher.Constraint("Distance", 59, 3.814099),
    Sketcher.Constraint("DistanceX", -1, 1, 8, 2, 9.713898),
    Sketcher.Constraint("DistanceY", 24, 2, -1, 1, 9.713898),
    Sketcher.Constraint("Distance", 2, 7.13128),
    Sketcher.Constraint("DistanceY", 12, 3, -1, 1, 62.756062),
    Sketcher.Constraint("DistanceX", 28, 3, -1, 1, 62.756062),
    Sketcher.Constraint("DistanceY", 0, 2, -1, 1, 15.25136),
    Sketcher.Constraint("DistanceX", -1, 1, 7, 2, 15.25136),
    Sketcher.Constraint("DistanceX", -1, 1, 4, 3, 44.375237),
    Sketcher.Constraint("DistanceY", 4, 3, -1, 1, 44.375237),
])
sketch1.setExpression("Constraints[168]", "Params.sketch1_radius")
sketch1.setExpression("Constraints[169]", "Params.sketch1_radius2")
pad1 = body.newObject("PartDesign::Pad", "Pad")
pad1.Profile = sketch1
pad1.setExpression("Length", "Params.pad1_length")
pad1.Reversed = True

sketch2 = body.newObject("Sketcher::SketchObject", "Sketch001")
sketch2.AttachmentSupport = (doc.getObject("XZ_Plane"), [""])
sketch2.MapMode = "FlatFace"
sketch2.AttachmentOffset = App.Placement(V(0, 0, -5), App.Rotation())
sketch2.addGeometry([
    Part.Circle(V(0, -11, 0), V(0, 0, 1), 1.65),
    Part.Circle(V(0, 0, 0), V(0, 0, 1), 6),
    Part.Circle(V(0, 11, 0), V(0, 0, 1), 1.65),
], False)
sketch2.addConstraint([
    Sketcher.Constraint("Coincident", 1, 3, -1, 1),
    Sketcher.Constraint("Equal", 0, 2),
    Sketcher.Constraint("Symmetric", 0, 3, 2, 3, -1, 1),
    Sketcher.Constraint("PointOnObject", 0, 3, -2),
    Sketcher.Constraint("Diameter", 1, 12.0),
    Sketcher.Constraint("Diameter", 0, 3.3),
    Sketcher.Constraint("DistanceY", 0, 3, -1, 1, 11.0),
])
sketch2.setExpression("Constraints[4]", "Params.sketch2_diameter")
sketch2.setExpression("Constraints[5]", "Params.sketch2_diameter2")
pocket1 = body.newObject("PartDesign::Pocket", "Pocket")
pocket1.Profile = sketch2
pocket1.setExpression("Length", "Params.pocket1_length")
pocket1.Reversed = True
doc.recompute()

fillet = body.newObject("PartDesign::Fillet", "Fillet")
fillet.Base = (pocket1, edges_at(pocket1, [
    (18.036, 2.5, -35.703),
    (35.703, 2.5, -18.036),
    (37.999, 2.5, -12.493),
    (37.999, 2.5, 12.493),
    (35.703, 2.5, 18.036),
    (18.036, 2.5, 35.703),
    (12.493, 2.5, 37.999),
    (-12.493, 2.5, 37.999),
    (-18.036, 2.5, 35.703),
    (-35.703, 2.5, 18.036),
    (-37.999, 2.5, 12.493),
    (-37.999, 2.5, -12.493),
    (-35.703, 2.5, -18.036),
    (-18.036, 2.5, -35.703),
    (-12.493, 2.5, -37.999),
    (12.493, 2.5, -37.999),
]))
fillet.setExpression("Radius", "Params.fillet_radius")

doc.recompute()
